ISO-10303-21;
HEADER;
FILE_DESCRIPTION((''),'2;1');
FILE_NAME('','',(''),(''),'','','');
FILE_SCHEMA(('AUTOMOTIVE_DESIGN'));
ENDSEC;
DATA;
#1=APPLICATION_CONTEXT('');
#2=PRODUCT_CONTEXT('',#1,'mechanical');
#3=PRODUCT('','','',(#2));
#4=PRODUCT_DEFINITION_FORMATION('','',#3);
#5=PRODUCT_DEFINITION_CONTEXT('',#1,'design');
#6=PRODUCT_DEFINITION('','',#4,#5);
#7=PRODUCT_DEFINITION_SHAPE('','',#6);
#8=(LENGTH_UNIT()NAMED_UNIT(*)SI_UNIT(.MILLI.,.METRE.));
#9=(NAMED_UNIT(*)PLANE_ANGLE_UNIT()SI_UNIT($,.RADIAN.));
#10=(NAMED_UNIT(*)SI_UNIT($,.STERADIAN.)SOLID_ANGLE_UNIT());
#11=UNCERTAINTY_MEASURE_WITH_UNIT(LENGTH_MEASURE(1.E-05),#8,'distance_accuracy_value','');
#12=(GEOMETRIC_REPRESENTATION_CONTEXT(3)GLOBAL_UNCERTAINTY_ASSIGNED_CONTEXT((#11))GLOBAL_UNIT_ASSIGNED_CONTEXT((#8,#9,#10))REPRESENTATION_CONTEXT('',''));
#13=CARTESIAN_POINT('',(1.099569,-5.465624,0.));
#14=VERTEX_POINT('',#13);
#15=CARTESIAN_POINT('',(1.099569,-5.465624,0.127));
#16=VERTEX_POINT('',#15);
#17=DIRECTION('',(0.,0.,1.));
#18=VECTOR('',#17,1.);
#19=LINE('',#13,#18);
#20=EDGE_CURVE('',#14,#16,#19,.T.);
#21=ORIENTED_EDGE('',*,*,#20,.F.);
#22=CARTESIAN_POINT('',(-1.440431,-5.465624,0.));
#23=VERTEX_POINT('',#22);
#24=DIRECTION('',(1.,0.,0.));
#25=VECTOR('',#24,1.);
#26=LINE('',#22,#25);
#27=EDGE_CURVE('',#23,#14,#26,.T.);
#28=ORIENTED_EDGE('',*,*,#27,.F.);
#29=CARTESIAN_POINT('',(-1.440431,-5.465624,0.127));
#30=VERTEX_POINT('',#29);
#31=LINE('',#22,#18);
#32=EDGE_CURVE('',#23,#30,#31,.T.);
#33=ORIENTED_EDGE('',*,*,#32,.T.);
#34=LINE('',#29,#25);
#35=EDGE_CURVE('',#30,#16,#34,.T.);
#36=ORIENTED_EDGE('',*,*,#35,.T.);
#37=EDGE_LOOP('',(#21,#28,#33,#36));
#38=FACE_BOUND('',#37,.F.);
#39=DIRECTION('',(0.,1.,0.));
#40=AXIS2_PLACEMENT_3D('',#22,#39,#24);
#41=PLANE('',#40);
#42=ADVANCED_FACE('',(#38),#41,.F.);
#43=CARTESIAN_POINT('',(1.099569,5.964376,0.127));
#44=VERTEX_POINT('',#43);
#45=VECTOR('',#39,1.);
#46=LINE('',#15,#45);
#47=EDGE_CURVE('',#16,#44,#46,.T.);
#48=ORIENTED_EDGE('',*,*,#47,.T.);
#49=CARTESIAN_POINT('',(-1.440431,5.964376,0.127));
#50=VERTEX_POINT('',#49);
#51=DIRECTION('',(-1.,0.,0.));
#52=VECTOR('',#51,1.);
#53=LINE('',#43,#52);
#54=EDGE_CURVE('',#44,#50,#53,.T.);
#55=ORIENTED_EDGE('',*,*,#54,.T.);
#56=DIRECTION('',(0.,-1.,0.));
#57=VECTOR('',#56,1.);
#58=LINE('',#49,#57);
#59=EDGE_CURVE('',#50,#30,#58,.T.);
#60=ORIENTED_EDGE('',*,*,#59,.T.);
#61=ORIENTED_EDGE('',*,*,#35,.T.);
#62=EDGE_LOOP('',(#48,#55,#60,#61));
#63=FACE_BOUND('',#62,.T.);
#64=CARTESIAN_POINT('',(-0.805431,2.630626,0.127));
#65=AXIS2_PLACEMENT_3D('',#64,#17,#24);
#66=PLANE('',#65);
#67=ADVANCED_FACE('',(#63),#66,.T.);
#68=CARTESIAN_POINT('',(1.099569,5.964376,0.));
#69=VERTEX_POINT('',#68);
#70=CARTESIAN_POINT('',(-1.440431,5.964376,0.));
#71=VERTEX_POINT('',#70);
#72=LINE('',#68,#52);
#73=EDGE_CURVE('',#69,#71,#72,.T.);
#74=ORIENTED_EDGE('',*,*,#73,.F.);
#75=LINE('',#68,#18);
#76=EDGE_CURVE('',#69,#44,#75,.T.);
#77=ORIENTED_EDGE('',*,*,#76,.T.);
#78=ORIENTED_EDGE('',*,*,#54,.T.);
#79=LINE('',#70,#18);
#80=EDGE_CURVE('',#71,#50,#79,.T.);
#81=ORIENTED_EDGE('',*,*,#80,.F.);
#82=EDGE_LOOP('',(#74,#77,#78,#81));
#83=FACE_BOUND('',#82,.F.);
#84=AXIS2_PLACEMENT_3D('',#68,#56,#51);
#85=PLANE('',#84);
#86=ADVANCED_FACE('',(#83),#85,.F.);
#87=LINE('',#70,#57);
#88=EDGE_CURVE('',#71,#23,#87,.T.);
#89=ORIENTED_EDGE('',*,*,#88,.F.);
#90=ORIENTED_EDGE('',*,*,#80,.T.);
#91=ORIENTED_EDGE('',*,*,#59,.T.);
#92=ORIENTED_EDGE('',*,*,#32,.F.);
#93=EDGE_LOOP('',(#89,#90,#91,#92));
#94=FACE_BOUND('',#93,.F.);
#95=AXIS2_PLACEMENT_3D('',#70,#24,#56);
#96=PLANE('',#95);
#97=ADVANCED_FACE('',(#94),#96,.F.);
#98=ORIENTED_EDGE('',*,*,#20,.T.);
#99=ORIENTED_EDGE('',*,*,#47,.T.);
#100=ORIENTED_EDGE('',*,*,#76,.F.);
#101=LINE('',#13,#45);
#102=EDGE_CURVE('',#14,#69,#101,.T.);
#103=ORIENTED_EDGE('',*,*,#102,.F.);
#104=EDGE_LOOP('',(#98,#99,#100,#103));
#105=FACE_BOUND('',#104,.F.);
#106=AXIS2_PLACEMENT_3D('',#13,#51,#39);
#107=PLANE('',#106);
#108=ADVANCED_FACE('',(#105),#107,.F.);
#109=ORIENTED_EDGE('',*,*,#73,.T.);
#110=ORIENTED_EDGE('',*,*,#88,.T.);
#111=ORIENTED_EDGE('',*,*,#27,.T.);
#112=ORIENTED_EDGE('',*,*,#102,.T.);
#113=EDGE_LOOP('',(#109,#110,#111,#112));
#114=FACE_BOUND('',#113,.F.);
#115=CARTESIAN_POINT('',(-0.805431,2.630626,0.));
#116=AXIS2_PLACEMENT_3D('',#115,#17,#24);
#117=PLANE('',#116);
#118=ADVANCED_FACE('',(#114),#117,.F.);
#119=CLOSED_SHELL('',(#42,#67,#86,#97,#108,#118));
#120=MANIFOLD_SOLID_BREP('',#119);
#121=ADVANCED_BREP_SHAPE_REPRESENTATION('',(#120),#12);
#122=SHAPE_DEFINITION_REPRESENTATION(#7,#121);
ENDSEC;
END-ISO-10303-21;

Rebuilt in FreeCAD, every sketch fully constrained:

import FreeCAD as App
import Part
import Sketcher
Q = App.Units.Quantity


def add_polygon(sketch, points):
    """Adds a closed chain of lines whose ends are joined by coincident constraints."""
    first, n = sketch.GeometryCount, len(points)
    for a, b in zip(points, points[1:] + points[:1]):
        sketch.addGeometry(Part.LineSegment(App.Vector(*a, 0), App.Vector(*b, 0)), False)
    for i in range(n):
        sketch.addConstraint(Sketcher.Constraint("Coincident", first + i, 2, first + (i + 1) % n, 1))

doc = App.newDocument("Part")
body = doc.addObject("PartDesign::Body", "Body")

sketch1 = body.newObject("Sketcher::SketchObject", "Sketch")
sketch1.AttachmentSupport = (doc.getObject("XY_Plane"), [""])
sketch1.MapMode = "FlatFace"
add_polygon(sketch1, [(-1.4, 6), (-1.4, -5.5), (1.1, -5.5), (1.1, 6)])
sketch1.addConstraint(Sketcher.Constraint("Vertical", 0))
sketch1.addConstraint(Sketcher.Constraint("Horizontal", 1))
sketch1.addConstraint(Sketcher.Constraint("Vertical", 2))
sketch1.addConstraint(Sketcher.Constraint("Horizontal", 3))
sketch1.addConstraint(Sketcher.Constraint("DistanceX", 1, 1, 1, 2, Q("0.1 in")))
sketch1.addConstraint(Sketcher.Constraint("DistanceY", 0, 2, 0, 1, Q("0.45 in")))
sketch1.addConstraint(Sketcher.Constraint("DistanceX", 0, 2, -1, 1, Q("1.440431 mm")))
sketch1.addConstraint(Sketcher.Constraint("DistanceY", 0, 2, -1, 1, Q("5.465624 mm")))
pad1 = body.newObject("PartDesign::Pad", "Pad")
pad1.Profile = sketch1
pad1.Length = Q("0.005 in")

doc.recompute()
